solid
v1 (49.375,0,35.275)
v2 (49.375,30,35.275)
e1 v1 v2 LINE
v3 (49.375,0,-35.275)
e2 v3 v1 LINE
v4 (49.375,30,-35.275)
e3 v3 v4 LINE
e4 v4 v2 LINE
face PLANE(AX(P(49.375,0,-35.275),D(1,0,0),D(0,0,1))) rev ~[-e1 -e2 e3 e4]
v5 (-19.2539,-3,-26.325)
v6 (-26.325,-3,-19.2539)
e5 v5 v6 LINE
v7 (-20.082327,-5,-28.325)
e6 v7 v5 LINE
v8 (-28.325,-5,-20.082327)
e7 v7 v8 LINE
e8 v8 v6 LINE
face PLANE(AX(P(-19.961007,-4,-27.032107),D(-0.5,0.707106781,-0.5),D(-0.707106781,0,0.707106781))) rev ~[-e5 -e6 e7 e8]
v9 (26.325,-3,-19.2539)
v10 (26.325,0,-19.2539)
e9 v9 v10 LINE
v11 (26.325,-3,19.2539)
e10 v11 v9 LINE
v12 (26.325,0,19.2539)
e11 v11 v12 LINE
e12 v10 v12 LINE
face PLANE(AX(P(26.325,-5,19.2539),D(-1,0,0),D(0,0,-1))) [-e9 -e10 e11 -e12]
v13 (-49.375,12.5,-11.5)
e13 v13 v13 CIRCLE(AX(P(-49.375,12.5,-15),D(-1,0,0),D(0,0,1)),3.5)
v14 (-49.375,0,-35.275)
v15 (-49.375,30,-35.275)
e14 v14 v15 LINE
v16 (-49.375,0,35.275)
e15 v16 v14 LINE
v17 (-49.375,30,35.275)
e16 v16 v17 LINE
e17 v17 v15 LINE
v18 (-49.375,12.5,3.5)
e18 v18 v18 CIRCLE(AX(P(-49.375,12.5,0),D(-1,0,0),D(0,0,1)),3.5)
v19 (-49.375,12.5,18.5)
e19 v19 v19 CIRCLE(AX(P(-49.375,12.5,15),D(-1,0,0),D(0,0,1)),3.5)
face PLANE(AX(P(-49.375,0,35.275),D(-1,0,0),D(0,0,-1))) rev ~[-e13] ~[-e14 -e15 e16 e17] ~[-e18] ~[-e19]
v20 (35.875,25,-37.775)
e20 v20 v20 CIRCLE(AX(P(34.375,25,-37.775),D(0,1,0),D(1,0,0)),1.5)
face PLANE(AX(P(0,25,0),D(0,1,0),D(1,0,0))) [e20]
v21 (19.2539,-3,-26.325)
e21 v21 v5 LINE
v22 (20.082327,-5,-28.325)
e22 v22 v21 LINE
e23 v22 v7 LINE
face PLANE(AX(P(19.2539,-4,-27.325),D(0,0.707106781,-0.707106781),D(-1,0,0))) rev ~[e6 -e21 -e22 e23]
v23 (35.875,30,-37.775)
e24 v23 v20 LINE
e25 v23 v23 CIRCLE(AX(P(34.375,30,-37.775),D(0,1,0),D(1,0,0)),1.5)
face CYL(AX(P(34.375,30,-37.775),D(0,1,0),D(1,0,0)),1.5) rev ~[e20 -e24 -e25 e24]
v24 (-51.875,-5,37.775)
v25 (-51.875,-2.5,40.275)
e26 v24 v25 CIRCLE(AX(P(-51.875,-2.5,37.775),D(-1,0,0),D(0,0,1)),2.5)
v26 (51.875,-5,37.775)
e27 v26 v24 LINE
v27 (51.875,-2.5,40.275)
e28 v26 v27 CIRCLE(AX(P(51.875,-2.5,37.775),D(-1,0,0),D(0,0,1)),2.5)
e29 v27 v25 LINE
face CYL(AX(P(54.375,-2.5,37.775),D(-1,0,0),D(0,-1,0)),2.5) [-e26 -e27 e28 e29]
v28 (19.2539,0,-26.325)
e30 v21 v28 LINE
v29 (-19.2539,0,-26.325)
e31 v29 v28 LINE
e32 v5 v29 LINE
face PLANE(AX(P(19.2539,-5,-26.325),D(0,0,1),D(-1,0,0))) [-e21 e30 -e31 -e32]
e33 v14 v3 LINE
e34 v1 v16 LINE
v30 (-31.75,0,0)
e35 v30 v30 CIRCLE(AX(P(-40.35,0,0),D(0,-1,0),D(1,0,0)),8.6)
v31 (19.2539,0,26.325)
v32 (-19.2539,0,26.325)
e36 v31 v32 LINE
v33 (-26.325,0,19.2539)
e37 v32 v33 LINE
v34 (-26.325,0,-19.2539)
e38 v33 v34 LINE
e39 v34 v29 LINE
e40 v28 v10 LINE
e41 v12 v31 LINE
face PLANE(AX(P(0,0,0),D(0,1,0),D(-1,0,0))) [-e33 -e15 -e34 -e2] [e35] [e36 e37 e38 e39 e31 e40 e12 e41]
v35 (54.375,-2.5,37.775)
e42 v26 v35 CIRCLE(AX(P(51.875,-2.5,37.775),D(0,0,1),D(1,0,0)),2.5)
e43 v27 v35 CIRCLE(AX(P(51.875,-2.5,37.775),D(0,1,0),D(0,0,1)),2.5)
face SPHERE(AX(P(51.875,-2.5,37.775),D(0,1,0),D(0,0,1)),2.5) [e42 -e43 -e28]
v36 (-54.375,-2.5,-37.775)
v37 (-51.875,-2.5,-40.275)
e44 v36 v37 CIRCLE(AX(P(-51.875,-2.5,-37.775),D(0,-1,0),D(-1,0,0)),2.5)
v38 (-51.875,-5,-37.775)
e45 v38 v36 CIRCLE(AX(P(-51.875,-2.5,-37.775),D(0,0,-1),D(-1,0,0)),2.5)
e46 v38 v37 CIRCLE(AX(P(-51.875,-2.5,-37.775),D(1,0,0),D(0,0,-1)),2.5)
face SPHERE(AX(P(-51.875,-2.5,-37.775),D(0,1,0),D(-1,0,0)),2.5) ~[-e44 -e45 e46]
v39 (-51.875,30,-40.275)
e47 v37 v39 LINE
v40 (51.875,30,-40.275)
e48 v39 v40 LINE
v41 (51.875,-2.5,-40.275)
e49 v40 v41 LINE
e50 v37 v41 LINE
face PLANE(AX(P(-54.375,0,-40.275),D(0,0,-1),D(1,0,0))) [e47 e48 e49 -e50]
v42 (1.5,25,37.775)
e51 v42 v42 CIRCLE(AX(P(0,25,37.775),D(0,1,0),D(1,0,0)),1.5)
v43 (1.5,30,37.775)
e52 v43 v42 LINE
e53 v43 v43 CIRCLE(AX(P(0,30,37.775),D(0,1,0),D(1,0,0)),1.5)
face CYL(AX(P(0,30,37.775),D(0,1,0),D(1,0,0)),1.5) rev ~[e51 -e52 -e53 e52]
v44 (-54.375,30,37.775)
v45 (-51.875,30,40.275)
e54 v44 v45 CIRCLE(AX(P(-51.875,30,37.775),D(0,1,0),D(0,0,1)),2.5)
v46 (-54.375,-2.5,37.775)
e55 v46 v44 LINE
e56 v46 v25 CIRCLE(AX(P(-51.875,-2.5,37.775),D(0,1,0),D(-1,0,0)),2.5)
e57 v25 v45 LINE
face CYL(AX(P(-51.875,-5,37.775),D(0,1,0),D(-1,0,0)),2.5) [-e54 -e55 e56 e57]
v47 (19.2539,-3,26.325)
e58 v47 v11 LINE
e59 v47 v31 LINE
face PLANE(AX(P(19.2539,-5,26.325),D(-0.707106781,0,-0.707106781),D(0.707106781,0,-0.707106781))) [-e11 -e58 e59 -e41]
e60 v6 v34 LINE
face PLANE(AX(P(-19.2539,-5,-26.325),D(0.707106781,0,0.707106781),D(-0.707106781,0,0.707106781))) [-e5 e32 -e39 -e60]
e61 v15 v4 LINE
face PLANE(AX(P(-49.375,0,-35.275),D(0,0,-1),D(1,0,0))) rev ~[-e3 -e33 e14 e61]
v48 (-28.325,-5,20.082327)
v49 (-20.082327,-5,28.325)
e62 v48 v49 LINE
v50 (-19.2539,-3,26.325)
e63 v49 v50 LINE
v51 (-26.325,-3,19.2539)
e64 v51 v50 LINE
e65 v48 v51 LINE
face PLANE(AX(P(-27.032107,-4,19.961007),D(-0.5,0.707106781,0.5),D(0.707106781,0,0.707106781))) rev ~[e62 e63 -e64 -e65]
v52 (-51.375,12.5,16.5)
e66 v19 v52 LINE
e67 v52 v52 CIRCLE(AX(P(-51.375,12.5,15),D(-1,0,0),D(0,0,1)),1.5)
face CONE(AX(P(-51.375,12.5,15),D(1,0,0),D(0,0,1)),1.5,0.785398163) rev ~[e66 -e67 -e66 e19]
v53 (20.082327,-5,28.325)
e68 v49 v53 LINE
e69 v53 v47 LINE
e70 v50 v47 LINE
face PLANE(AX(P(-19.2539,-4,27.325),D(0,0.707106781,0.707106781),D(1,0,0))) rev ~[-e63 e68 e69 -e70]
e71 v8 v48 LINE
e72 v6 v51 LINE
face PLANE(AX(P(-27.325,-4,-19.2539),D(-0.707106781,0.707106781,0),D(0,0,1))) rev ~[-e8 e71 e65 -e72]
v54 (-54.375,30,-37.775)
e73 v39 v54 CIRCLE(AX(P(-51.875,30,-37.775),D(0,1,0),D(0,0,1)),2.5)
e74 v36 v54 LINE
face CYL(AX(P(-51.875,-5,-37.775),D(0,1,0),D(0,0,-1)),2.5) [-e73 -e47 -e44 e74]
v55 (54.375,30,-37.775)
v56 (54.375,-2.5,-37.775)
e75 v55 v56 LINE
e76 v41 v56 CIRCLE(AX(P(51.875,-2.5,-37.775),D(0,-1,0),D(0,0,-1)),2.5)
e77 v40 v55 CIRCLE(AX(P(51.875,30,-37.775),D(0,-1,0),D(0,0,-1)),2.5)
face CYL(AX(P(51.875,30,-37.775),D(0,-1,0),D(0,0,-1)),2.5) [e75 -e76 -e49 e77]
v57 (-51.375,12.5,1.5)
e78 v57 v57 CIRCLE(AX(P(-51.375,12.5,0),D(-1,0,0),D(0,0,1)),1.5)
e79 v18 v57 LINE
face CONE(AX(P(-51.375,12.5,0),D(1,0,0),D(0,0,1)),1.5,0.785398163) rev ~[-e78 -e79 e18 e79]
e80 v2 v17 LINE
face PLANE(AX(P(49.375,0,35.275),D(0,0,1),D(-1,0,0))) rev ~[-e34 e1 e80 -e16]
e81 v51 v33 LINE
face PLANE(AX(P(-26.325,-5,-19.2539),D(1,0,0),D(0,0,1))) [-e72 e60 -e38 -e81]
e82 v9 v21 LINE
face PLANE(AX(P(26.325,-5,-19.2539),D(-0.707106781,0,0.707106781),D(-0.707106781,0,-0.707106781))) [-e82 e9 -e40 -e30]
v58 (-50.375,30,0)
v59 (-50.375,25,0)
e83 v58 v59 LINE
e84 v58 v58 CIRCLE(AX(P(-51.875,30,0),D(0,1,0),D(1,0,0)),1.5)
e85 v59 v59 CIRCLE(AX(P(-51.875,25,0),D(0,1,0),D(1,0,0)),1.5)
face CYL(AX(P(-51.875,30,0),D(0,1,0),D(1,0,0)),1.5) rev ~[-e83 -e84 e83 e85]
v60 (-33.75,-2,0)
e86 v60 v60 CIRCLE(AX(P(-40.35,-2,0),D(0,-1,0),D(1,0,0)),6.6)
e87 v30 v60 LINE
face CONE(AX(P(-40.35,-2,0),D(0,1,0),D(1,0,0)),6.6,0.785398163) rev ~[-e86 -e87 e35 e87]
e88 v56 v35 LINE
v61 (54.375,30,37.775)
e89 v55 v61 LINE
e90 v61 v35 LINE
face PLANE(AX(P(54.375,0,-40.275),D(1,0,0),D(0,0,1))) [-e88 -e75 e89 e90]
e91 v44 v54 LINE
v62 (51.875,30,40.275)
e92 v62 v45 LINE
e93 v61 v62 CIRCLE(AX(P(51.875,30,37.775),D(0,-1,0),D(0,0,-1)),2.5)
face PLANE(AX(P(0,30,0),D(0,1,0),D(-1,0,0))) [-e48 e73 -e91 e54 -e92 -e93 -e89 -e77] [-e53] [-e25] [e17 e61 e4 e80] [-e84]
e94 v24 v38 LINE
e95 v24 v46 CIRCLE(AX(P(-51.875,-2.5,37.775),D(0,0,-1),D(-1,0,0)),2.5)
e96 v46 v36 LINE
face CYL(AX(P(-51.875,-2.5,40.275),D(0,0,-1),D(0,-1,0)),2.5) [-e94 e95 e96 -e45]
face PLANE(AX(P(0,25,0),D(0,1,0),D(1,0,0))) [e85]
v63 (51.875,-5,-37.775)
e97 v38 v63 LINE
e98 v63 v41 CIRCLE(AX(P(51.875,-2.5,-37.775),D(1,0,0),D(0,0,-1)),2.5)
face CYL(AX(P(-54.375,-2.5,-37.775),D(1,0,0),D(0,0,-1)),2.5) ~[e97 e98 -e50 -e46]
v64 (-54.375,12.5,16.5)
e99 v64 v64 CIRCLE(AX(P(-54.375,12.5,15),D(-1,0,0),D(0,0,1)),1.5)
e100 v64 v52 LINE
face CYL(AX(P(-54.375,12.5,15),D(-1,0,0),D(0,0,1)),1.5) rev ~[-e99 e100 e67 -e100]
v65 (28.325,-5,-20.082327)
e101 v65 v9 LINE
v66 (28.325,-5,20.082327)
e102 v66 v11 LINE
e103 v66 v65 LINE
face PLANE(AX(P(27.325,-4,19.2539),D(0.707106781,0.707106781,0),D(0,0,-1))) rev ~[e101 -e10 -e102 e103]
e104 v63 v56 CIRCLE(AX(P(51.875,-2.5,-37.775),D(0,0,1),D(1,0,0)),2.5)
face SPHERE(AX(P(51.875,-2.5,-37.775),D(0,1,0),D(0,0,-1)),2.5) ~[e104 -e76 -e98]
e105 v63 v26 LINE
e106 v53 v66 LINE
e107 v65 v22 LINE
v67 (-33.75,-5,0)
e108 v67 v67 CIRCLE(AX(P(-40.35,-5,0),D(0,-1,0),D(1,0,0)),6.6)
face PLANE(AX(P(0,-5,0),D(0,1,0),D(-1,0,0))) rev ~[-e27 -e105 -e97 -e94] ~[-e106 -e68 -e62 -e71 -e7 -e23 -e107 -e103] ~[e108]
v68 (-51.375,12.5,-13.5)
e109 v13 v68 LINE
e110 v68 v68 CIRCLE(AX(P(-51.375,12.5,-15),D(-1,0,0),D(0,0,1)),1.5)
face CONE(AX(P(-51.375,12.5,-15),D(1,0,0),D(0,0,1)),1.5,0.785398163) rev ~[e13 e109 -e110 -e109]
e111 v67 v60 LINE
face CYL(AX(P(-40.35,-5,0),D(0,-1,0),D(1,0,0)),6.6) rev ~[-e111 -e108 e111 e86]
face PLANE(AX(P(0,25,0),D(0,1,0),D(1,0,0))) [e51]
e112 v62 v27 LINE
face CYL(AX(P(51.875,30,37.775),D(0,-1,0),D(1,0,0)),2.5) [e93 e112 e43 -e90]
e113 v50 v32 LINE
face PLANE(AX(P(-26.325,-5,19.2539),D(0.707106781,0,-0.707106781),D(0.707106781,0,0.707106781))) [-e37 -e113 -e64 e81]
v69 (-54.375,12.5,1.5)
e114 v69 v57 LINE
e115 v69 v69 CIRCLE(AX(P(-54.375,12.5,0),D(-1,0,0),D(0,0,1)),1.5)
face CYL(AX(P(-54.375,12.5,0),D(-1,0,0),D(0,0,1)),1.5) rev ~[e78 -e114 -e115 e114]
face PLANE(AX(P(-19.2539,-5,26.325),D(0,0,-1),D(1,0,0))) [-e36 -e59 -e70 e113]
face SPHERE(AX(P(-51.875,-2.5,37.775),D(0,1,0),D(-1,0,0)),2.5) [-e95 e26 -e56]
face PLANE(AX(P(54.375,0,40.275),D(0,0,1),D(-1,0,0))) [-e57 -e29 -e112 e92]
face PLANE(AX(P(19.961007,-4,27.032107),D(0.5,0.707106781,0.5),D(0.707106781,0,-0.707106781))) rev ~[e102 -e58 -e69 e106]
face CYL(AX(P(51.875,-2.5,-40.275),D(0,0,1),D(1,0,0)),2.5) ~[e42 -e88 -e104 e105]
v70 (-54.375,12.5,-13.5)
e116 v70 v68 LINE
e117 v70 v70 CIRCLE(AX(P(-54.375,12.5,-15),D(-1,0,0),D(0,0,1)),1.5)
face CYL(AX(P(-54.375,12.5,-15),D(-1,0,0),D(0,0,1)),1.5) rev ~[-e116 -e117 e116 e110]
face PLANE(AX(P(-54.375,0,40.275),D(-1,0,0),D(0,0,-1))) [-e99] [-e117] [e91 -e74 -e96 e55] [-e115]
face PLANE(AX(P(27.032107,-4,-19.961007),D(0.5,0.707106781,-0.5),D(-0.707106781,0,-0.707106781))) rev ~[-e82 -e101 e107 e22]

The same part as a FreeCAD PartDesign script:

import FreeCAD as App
import Part
import Sketcher
Q = App.Units.Quantity


def edges_at(feature, points):
    """Names of the edges that pass closest to the given points."""
    edges = feature.Shape.Edges
    near = lambda p: min(range(len(edges)), key=lambda i: edges[i].distToShape(Part.Vertex(*p))[0])
    return sorted({f"Edge{near(p) + 1}" for p in points})


def add_polygon(sketch, points):
    """Adds a closed chain of lines whose ends are joined by coincident constraints."""
    first, n = sketch.GeometryCount, len(points)
    for a, b in zip(points, points[1:] + points[:1]):
        sketch.addGeometry(Part.LineSegment(App.Vector(*a, 0), App.Vector(*b, 0)), False)
    for i in range(n):
        sketch.addConstraint(Sketcher.Constraint("Coincident", first + i, 2, first + (i + 1) % n, 1))

doc = App.newDocument("Part")
body = doc.addObject("PartDesign::Body", "Body")

# Sketch on XZ plane
sketch1 = doc.addObject("Sketcher::SketchObject", "Sketch")
body.addObject(sketch1)
sketch1.AttachmentSupport = (doc.XZ_Plane, [""])
sketch1.MapMode = "FlatFace"
add_polygon(sketch1, [(54, -40), (-54, -40), (-54, 40), (54, 40)])  # lines 0-3
add_polygon(sketch1, [(-49, 35), (-49, -35), (49, -35), (49, 35)])  # lines 4-7
sketch1.addConstraint([
    Sketcher.Constraint("Horizontal", 0),
    Sketcher.Constraint("Vertical", 1),
    Sketcher.Constraint("Horizontal", 2),
    Sketcher.Constraint("Vertical", 3),
    Sketcher.Constraint("Vertical", 4),
    Sketcher.Constraint("Horizontal", 5),
    Sketcher.Constraint("Vertical", 6),
    Sketcher.Constraint("Horizontal", 7),
    Sketcher.Constraint("Symmetric", 0, 2, 2, 2, -1, 1),
    Sketcher.Constraint("Symmetric", 4, 2, 6, 2, -1, 1),
    Sketcher.Constraint("DistanceX", 0, 2, 4, 2, Q("5 mm")),
    Sketcher.Constraint("DistanceY", 0, 2, 4, 2, Q("5 mm")),
    Sketcher.Constraint("DistanceX", 5, 1, 5, 2, Q("98.75 mm")),
    Sketcher.Constraint("DistanceY", 4, 2, 4, 1, Q("70.55 mm")),
])
pad1 = doc.addObject("PartDesign::Pad", "Pad")
body.addObject(pad1)
pad1.Profile = sketch1
pad1.Length = 30
pad1.Reversed = True

# Sketch on XZ plane
sketch2 = doc.addObject("Sketcher::SketchObject", "Sketch001")
body.addObject(sketch2)
sketch2.AttachmentSupport = (doc.XZ_Plane, [""])
sketch2.MapMode = "FlatFace"
add_polygon(sketch2, [(54, -40), (-54, -40), (-54, 40), (54, 40)])  # lines 0-3
sketch2.addConstraint([
    Sketcher.Constraint("Horizontal", 0),
    Sketcher.Constraint("Vertical", 1),
    Sketcher.Constraint("Horizontal", 2),
    Sketcher.Constraint("Vertical", 3),
    Sketcher.Constraint("Symmetric", 0, 2, 2, 2, -1, 1),
    Sketcher.Constraint("DistanceX", 0, 2, 0, 1, Q("108.75 mm")),
    Sketcher.Constraint("DistanceY", 1, 1, 1, 2, Q("80.55 mm")),
])
pad2 = doc.addObject("PartDesign::Pad", "Pad001")
body.addObject(pad2)
pad2.Profile = sketch2
pad2.Length = 5

# Sketch on XZ plane
sketch3 = doc.addObject("Sketcher::SketchObject", "Sketch002")
body.addObject(sketch3)
sketch3.AttachmentSupport = (doc.XZ_Plane, [""])
sketch3.MapMode = "FlatFace"
sketch3.AttachmentOffset = App.Placement(App.Vector(0, 0, 5), App.Rotation())
add_polygon(sketch3, [(-19, -26), (19, -26), (26, -19), (26, 19), (19, 26), (-19, 26), (-26, 19), (-26, -19)])  # lines 0-7
sketch3.addConstraint([
    Sketcher.Constraint("Horizontal", 0),
    Sketcher.Constraint("Vertical", 2),
    Sketcher.Constraint("Horizontal", 4),
    Sketcher.Constraint("Vertical", 6),
    Sketcher.Constraint("Symmetric", 0, 2, 4, 2, -1, 1),
    Sketcher.Constraint("Symmetric", 1, 2, 5, 2, -1, 1),
    Sketcher.Constraint("Perpendicular", 1, 3),
    Sketcher.Constraint("Perpendicular", 5, 7),
    Sketcher.Constraint("Horizontal", 2, 2, 5, 2),
    Sketcher.Constraint("Horizontal", 1, 2, 6, 2),
    Sketcher.Constraint("Vertical", 0, 2, 3, 2),
    Sketcher.Constraint("Equal", 4, 2),
    Sketcher.Constraint("DistanceY", 0, 2, 3, 2, Q("52.65 mm")),
    Sketcher.Constraint("Distance", 1, Q("10 mm")),
])
pocket1 = doc.addObject("PartDesign::Pocket", "Pocket")
body.addObject(pocket1)
pocket1.Profile = sketch3
pocket1.Type = "ThroughAll"

# Sketch on YZ plane
sketch4 = doc.addObject("Sketcher::SketchObject", "Sketch003")
body.addObject(sketch4)
sketch4.AttachmentSupport = (doc.YZ_Plane, [""])
sketch4.MapMode = "FlatFace"
sketch4.AttachmentOffset = App.Placement(App.Vector(0, 0, -54.375), App.Rotation())
sketch4.addGeometry([
    Part.Circle(App.Vector(12.5, 0, 0), App.Vector(0, 0, 1), 1.5),
    Part.Circle(App.Vector(12.5, -15, 0), App.Vector(0, 0, 1), 1.5),
    Part.Circle(App.Vector(12.5, 15, 0), App.Vector(0, 0, 1), 1.5),
], False)
sketch4.addConstraint([
    Sketcher.Constraint("Equal", 0, 1),
    Sketcher.Constraint("Equal", 1, 2),
    Sketcher.Constraint("Symmetric", 1, 3, 2, 3, -1),
    Sketcher.Constraint("PointOnObject", 0, 3, -1),
    Sketcher.Constraint("Vertical", 0, 3, 1, 3),
    Sketcher.Constraint("Diameter", 0, Q("3 mm")),
    Sketcher.Constraint("DistanceY", 1, 3, -1, 1, Q("15 mm")),
    Sketcher.Constraint("DistanceX", -1, 1, 0, 3, Q("12.5 mm")),
])
pocket2 = doc.addObject("PartDesign::Pocket", "Pocket001")
body.addObject(pocket2)
pocket2.Profile = sketch4
pocket2.Length = 5
pocket2.Reversed = True
doc.recompute()

fillet = doc.addObject("PartDesign::Fillet", "Fillet")
body.addObject(fillet)
fillet.Base = (pocket2, edges_at(pocket2, [
    (-54.375, 12.5, 40.275),
    (54.375, 12.5, 40.275),
    (54.375, 12.5, -40.275),
    (-54.375, 12.5, -40.275),
    (-54.375, -5, 0),
    (0, -5, -40.275),
    (0, -5, 40.275),
    (54.375, -5, 0),
]))
fillet.Radius = 2.5
doc.recompute()

chamfer = doc.addObject("PartDesign::Chamfer", "Chamfer")
body.addObject(chamfer)
chamfer.Base = (fillet, edges_at(fillet, [
    (-49.375, 12.5, 13.5),
    (-49.375, 12.5, -1.5),
    (-49.375, 12.5, -16.5),
    (0, -5, -26.325),
    (22.79, -5, -22.79),
    (26.325, -5, 0),
    (22.79, -5, 22.79),
    (0, -5, 26.325),
    (-22.79, -5, 22.79),
    (-26.325, -5, 0),
    (-22.79, -5, -22.79),
]))
chamfer.Size = 2

# Sketch on XZ plane
sketch5 = doc.addObject("Sketcher::SketchObject", "Sketch004")
body.addObject(sketch5)
sketch5.AttachmentSupport = (doc.XZ_Plane, [""])
sketch5.MapMode = "FlatFace"
sketch5.AttachmentOffset = App.Placement(App.Vector(0, 0, 5), App.Rotation())
sketch5.addGeometry(Part.Circle(App.Vector(-40, 0, 0), App.Vector(0, 0, 1), 7), False)
sketch5.addConstraint([
    Sketcher.Constraint("PointOnObject", 0, 3, -1),
    Sketcher.Constraint("Diameter", 0, Q("13.2 mm")),
    Sketcher.Constraint("DistanceX", 0, 3, -1, 1, Q("40.35 mm")),
])
pocket3 = doc.addObject("PartDesign::Pocket", "Pocket002")
body.addObject(pocket3)
pocket3.Profile = sketch5
pocket3.Length = 5
doc.recompute()

chamfer2 = doc.addObject("PartDesign::Chamfer", "Chamfer001")
body.addObject(chamfer2)
chamfer2.Base = (pocket3, edges_at(pocket3, [(-46.95, 0, 0)]))
chamfer2.Size = 2

# Sketch on XZ plane
sketch6 = doc.addObject("Sketcher::SketchObject", "Sketch005")
body.addObject(sketch6)
sketch6.AttachmentSupport = (doc.XZ_Plane, [""])
sketch6.MapMode = "FlatFace"
sketch6.AttachmentOffset = App.Placement(App.Vector(0, 0, -30), App.Rotation())
sketch6.addGeometry([
    Part.Circle(App.Vector(-51.9, 0, 0), App.Vector(0, 0, 1), 1.5),
    Part.Circle(App.Vector(0, 37.8, 0), App.Vector(0, 0, 1), 1.5),
    Part.Circle(App.Vector(34.4, -37.8, 0), App.Vector(0, 0, 1), 1.5),
], False)
sketch6.addConstraint([
    Sketcher.Constraint("Equal", 0, 1),
    Sketcher.Constraint("Equal", 1, 2),
    Sketcher.Constraint("PointOnObject", 0, 3, -1),
    Sketcher.Constraint("PointOnObject", 1, 3, -2),
    Sketcher.Constraint("Diameter", 0, Q("3 mm")),
    Sketcher.Constraint("DistanceY", 2, 3, 1, 3, Q("75.55 mm")),
    Sketcher.Constraint("DistanceX", 0, 3, 2, 3, Q("86.25 mm")),
    Sketcher.Constraint("DistanceX", 0, 3, -1, 1, Q("51.875 mm")),
    Sketcher.Constraint("DistanceY", -1, 1, 1, 3, Q("37.775 mm")),
])
pocket4 = doc.addObject("PartDesign::Pocket", "Pocket003")
body.addObject(pocket4)
pocket4.Profile = sketch6
pocket4.Length = 5
pocket4.Reversed = True

doc.recompute()
